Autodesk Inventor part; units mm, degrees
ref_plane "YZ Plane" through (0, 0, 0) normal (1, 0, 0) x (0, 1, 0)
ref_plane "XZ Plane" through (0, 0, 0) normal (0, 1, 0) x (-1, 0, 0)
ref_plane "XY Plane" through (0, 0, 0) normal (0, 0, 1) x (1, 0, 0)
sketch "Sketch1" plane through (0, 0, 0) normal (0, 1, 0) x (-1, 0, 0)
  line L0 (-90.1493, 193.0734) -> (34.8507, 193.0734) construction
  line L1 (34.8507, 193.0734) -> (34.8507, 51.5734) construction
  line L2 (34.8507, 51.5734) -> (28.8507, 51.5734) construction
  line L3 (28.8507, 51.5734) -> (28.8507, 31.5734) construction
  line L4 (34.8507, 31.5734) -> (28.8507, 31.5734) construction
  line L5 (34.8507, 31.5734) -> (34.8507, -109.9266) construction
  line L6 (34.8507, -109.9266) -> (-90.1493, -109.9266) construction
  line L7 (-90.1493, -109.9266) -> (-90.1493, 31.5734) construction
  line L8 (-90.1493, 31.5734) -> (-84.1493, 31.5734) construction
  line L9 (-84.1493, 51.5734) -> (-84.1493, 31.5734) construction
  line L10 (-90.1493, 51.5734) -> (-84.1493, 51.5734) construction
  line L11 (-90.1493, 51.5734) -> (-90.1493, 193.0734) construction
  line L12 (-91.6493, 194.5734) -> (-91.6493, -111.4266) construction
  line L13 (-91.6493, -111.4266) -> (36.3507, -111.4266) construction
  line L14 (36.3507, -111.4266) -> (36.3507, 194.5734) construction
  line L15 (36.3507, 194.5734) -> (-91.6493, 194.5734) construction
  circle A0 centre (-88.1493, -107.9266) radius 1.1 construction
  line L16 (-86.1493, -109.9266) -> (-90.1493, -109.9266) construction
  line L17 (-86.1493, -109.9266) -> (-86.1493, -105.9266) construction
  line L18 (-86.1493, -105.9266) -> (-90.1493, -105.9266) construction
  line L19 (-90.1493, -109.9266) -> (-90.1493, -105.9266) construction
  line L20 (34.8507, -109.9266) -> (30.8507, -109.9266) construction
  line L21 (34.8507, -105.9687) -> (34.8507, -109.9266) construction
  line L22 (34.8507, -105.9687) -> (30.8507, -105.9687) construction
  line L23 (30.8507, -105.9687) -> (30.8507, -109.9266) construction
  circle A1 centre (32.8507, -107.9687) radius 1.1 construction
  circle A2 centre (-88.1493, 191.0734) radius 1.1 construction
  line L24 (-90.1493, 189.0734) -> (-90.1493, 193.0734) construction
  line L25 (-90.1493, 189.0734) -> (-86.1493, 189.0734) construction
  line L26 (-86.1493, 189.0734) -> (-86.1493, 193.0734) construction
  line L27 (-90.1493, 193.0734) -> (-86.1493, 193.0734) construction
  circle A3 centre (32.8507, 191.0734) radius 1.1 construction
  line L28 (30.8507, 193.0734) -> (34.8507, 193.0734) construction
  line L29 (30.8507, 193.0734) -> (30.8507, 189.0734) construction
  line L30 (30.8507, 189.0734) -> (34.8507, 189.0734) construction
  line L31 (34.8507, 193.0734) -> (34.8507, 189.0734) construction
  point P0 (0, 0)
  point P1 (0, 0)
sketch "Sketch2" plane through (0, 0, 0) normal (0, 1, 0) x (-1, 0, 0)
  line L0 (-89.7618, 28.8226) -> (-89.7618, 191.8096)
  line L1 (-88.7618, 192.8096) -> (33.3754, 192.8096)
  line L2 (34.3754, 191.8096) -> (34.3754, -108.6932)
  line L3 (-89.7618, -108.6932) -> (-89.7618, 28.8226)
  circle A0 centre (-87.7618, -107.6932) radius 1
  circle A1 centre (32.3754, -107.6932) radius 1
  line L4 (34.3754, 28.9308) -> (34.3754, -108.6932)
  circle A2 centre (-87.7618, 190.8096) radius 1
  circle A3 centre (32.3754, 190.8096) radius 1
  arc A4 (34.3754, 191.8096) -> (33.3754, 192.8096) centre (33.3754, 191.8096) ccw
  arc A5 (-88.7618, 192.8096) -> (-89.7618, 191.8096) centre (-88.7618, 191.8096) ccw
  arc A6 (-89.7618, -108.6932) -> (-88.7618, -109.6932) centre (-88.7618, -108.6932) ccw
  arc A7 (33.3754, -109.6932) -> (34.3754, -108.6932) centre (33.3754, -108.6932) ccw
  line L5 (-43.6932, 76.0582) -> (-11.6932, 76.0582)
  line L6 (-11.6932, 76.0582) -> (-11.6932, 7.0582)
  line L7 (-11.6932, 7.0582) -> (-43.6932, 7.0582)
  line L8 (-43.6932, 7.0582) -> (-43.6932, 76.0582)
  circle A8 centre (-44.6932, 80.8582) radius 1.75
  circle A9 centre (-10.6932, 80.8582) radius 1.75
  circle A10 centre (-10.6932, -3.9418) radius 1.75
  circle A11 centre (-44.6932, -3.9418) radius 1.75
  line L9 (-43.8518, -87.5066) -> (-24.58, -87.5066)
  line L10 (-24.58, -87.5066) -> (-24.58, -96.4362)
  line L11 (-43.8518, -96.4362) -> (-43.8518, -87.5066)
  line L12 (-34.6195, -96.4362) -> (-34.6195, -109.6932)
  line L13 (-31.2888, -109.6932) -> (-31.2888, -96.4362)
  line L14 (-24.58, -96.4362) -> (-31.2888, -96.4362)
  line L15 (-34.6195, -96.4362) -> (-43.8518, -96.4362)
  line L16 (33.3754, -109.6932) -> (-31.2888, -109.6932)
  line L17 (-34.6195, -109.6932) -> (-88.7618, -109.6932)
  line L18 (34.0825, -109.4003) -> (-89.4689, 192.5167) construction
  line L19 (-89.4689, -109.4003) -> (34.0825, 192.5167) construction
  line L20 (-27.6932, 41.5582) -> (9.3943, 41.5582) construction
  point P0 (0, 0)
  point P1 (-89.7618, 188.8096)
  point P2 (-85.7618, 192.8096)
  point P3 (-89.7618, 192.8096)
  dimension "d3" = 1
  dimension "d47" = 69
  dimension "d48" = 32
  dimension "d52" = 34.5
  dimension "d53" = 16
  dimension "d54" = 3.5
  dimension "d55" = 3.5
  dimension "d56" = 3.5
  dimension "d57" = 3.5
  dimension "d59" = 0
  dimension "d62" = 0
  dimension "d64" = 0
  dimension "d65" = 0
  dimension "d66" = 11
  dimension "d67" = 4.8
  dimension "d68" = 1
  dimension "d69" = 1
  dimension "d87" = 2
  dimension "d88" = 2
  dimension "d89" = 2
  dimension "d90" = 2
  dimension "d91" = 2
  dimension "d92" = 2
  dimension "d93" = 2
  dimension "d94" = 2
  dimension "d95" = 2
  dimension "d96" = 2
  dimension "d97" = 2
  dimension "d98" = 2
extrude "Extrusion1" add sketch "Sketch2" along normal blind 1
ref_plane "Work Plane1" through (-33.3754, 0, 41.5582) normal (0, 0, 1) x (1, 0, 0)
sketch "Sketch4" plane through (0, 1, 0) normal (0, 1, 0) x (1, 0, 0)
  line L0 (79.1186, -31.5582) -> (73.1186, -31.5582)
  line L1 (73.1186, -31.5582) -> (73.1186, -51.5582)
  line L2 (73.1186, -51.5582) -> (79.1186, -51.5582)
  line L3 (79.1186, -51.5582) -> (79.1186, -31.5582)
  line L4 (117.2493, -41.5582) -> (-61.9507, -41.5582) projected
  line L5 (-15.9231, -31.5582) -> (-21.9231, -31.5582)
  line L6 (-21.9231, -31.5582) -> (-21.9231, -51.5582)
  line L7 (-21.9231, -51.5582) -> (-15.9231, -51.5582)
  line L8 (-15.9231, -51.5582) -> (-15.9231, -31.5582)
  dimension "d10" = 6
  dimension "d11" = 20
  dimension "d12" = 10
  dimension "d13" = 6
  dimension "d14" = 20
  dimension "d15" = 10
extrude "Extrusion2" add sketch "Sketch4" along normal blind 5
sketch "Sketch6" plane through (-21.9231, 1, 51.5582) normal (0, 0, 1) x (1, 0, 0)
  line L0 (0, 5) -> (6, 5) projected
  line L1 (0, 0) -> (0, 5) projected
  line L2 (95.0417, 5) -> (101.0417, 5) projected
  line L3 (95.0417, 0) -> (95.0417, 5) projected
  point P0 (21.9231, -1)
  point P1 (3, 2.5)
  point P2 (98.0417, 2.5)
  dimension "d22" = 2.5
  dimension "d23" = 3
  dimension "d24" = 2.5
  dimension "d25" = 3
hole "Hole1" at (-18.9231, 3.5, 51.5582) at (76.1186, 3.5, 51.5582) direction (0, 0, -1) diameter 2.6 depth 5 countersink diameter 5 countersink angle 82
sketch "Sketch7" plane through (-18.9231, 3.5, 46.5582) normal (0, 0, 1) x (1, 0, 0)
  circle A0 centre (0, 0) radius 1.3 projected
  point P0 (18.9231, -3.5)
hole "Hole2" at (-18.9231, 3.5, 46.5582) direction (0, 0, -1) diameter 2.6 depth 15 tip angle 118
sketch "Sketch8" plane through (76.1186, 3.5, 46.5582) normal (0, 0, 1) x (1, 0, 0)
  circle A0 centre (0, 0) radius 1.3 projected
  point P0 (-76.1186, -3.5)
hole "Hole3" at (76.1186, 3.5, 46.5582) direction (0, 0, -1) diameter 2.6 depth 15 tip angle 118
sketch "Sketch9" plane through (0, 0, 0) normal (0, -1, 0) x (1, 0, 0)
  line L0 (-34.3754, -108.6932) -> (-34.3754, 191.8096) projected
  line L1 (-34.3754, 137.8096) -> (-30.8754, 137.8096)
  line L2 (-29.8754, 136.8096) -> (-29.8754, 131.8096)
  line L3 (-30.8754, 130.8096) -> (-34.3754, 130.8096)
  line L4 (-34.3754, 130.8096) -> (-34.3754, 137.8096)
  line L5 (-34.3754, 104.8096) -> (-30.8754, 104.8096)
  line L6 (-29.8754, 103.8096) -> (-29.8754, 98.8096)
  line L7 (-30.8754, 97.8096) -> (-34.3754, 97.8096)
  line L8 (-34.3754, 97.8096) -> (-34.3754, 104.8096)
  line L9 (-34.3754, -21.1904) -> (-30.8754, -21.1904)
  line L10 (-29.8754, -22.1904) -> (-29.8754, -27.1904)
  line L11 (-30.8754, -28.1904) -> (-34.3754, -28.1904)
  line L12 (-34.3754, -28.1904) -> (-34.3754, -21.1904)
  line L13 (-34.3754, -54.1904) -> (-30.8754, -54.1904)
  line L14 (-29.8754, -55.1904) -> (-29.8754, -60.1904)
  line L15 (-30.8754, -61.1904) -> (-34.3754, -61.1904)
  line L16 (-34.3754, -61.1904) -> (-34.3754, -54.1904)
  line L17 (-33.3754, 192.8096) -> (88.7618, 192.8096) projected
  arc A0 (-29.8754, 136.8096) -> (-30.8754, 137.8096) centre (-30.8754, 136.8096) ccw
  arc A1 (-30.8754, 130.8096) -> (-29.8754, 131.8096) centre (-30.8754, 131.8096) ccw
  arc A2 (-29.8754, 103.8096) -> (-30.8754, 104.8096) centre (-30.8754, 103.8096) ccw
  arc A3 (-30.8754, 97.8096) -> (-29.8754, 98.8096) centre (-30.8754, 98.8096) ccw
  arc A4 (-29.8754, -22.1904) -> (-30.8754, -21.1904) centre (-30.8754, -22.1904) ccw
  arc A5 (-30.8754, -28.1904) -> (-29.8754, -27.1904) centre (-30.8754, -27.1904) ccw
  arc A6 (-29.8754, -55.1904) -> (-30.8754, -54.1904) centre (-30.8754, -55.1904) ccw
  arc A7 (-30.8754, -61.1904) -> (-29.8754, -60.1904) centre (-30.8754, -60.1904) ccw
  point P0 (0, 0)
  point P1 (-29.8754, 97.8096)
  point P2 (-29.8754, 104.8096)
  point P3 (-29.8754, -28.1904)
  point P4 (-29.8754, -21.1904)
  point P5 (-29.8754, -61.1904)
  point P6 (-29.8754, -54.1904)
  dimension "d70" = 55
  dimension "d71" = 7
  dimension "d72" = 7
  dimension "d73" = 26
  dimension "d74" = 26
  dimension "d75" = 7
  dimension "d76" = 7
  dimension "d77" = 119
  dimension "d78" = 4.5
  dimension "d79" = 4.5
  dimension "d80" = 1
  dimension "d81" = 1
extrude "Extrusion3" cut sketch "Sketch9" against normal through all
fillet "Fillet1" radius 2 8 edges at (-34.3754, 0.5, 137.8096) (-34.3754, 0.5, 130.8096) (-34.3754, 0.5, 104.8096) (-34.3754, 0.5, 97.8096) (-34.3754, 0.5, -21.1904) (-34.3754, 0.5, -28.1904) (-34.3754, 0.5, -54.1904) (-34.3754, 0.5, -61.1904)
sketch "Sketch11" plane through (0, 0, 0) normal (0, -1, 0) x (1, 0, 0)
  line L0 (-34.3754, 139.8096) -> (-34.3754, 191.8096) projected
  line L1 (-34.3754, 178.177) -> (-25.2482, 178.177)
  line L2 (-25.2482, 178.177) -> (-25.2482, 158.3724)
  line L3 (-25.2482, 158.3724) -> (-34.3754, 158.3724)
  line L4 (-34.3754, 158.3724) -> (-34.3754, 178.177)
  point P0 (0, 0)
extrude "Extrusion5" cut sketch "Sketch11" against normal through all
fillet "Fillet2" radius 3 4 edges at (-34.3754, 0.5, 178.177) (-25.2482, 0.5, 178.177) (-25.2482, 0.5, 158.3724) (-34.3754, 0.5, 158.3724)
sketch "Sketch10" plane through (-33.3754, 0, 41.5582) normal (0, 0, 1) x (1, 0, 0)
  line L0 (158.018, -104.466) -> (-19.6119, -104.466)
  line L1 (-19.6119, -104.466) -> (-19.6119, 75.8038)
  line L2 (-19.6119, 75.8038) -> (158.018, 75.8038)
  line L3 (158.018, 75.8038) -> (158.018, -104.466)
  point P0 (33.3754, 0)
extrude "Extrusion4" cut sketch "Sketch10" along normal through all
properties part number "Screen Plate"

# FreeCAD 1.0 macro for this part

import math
import FreeCAD as App
import Part
import Sketcher

V = App.Vector


def edges_at(feature, points):
    """Names of the edges that pass closest to the given points."""
    edges = feature.Shape.Edges
    near = lambda p: min(range(len(edges)), key=lambda i: edges[i].distToShape(Part.Vertex(*p))[0])
    return sorted({f"Edge{near(p) + 1}" for p in points})


def add_polygon(sketch, points):
    """Adds a closed chain of lines whose ends are joined by coincident constraints."""
    first, n = sketch.GeometryCount, len(points)
    for a, b in zip(points, points[1:] + points[:1]):
        sketch.addGeometry(Part.LineSegment(App.Vector(*a, 0), App.Vector(*b, 0)), False)
    for i in range(n):
        sketch.addConstraint(Sketcher.Constraint("Coincident", first + i, 2, first + (i + 1) % n, 1))

doc = App.newDocument("Part")
params = doc.addObject("Spreadsheet::Sheet", "Params")
for row, (alias, value) in enumerate([
    ("sketch1_diameter", "2 mm"),
    ("sketch1_diameter2", "3.5 mm"),
    ("sketch1_width", "32 mm"),
    ("sketch1_height", "69 mm"),
    ("pad1_length", "1 mm"),
    ("sketch2_width", "6 mm"),
    ("sketch2_height", "20 mm"),
    ("pad2_length", "5 mm"),
    ("sketch3_diameter", "2.6 mm"),
    ("hole_diameter", "2.6 mm"),
    ("hole_depth", "5 mm"),
    ("hole_csink_diameter", "5 mm"),
    ("sketch4_diameter", "2.6 mm"),
    ("hole2_diameter", "2.6 mm"),
    ("hole2_depth", "15 mm"),
    ("sketch5_diameter", "2.6 mm"),
    ("hole3_diameter", "2.6 mm"),
    ("hole3_depth", "15 mm"),
    ("sketch6_radius", "1 mm"),
    ("sketch6_height", "7 mm"),
    ("fillet_radius", "2 mm"),
    ("fillet2_radius", "3 mm"),
    ("sketch8_width", "177.63 mm"),
], start=1):
    params.set(f"A{row}", alias)
    params.set(f"B{row}", "=" + value)
    params.setAlias(f"B{row}", alias)

body = doc.addObject("PartDesign::Body", "Body")

sketch1 = body.newObject("Sketcher::SketchObject", "Sketch")
sketch1.AttachmentSupport = (doc.getObject("XZ_Plane"), [""])
sketch1.MapMode = "FlatFace"
sketch1.addGeometry(Part.LineSegment(V(89.8, 191.8, 0), V(89.8, -108.7, 0)), False)
sketch1.addGeometry(Part.ArcOfCircle(Part.Circle(V(88.8, -108.7, 0), V(0, 0, 1), 1), math.radians(-90), math.radians(0)), False)
sketch1.addGeometry(Part.LineSegment(V(88.8, -109.7, 0), V(34.6, -109.7, 0)), False)
sketch1.addGeometry(Part.LineSegment(V(34.6, -109.7, 0), V(34.6, -96.4, 0)), False)
sketch1.addGeometry(Part.LineSegment(V(34.6, -96.4, 0), V(43.9, -96.4, 0)), False)
sketch1.addGeometry(Part.LineSegment(V(43.9, -96.4, 0), V(43.9, -87.5, 0)), False)
sketch1.addGeometry(Part.LineSegment(V(43.9, -87.5, 0), V(24.6, -87.5, 0)), False)
sketch1.addGeometry(Part.LineSegment(V(24.6, -87.5, 0), V(24.6, -96.4, 0)), False)
sketch1.addGeometry(Part.LineSegment(V(24.6, -96.4, 0), V(31.3, -96.4, 0)), False)
sketch1.addGeometry(Part.LineSegment(V(31.3, -96.4, 0), V(31.3, -109.7, 0)), False)
sketch1.addGeometry(Part.LineSegment(V(31.3, -109.7, 0), V(-33.4, -109.7, 0)), False)
sketch1.addGeometry(Part.ArcOfCircle(Part.Circle(V(-33.4, -108.7, 0), V(0, 0, 1), 1), math.radians(180), math.radians(270)), False)
sketch1.addGeometry(Part.LineSegment(V(-34.4, -108.7, 0), V(-34.4, 191.8, 0)), False)
sketch1.addGeometry(Part.ArcOfCircle(Part.Circle(V(-33.4, 191.8, 0), V(0, 0, 1), 1), math.radians(90), math.radians(180)), False)
sketch1.addGeometry(Part.LineSegment(V(-33.4, 192.8, 0), V(88.8, 192.8, 0)), False)
sketch1.addGeometry(Part.ArcOfCircle(Part.Circle(V(88.8, 191.8, 0), V(0, 0, 1), 1), math.radians(0), math.radians(90)), False)
sketch1.addGeometry(Part.Circle(V(87.8, -107.7, 0), V(0, 0, 1), 1), False)
sketch1.addGeometry(Part.Circle(V(44.7, -3.9, 0), V(0, 0, 1), 1.8), False)
add_polygon(sketch1, [(43.7, 7.1), (43.7, 76.1), (11.7, 76.1), (11.7, 7.1)])
sketch1.addGeometry(Part.Circle(V(-32.4, -107.7, 0), V(0, 0, 1), 1), False)
sketch1.addGeometry(Part.Circle(V(10.7, -3.9, 0), V(0, 0, 1), 1.8), False)
sketch1.addGeometry(Part.Circle(V(44.7, 80.9, 0), V(0, 0, 1), 1.8), False)
sketch1.addGeometry(Part.Circle(V(87.8, 190.8, 0), V(0, 0, 1), 1), False)
sketch1.addGeometry(Part.Circle(V(10.7, 80.9, 0), V(0, 0, 1), 1.8), False)
sketch1.addGeometry(Part.Circle(V(-32.4, 190.8, 0), V(0, 0, 1), 1), False)
sketch1.addConstraint(Sketcher.Constraint("Tangent", 0, 2, 1, 2))
sketch1.addConstraint(Sketcher.Constraint("Tangent", 1, 1, 2, 1))
sketch1.addConstraint(Sketcher.Constraint("Coincident", 2, 2, 3, 1))
sketch1.addConstraint(Sketcher.Constraint("Coincident", 3, 2, 4, 1))
sketch1.addConstraint(Sketcher.Constraint("Coincident", 4, 2, 5, 1))
sketch1.addConstraint(Sketcher.Constraint("Coincident", 5, 2, 6, 1))
sketch1.addConstraint(Sketcher.Constraint("Coincident", 6, 2, 7, 1))
sketch1.addConstraint(Sketcher.Constraint("Coincident", 7, 2, 8, 1))
sketch1.addConstraint(Sketcher.Constraint("Coincident", 8, 2, 9, 1))
sketch1.addConstraint(Sketcher.Constraint("Coincident", 9, 2, 10, 1))
sketch1.addConstraint(Sketcher.Constraint("Tangent", 10, 2, 11, 2))
sketch1.addConstraint(Sketcher.Constraint("Tangent", 11, 1, 12, 1))
sketch1.addConstraint(Sketcher.Constraint("Tangent", 12, 2, 13, 2))
sketch1.addConstraint(Sketcher.Constraint("Tangent", 13, 1, 14, 1))
sketch1.addConstraint(Sketcher.Constraint("Tangent", 14, 2, 15, 2))
sketch1.addConstraint(Sketcher.Constraint("Tangent", 15, 1, 0, 1))
sketch1.addConstraint(Sketcher.Constraint("Vertical", 0))
sketch1.addConstraint(Sketcher.Constraint("Horizontal", 2))
sketch1.addConstraint(Sketcher.Constraint("Vertical", 3))
sketch1.addConstraint(Sketcher.Constraint("Horizontal", 4))
sketch1.addConstraint(Sketcher.Constraint("Vertical", 5))
sketch1.addConstraint(Sketcher.Constraint("Horizontal", 6))
sketch1.addConstraint(Sketcher.Constraint("Vertical", 7))
sketch1.addConstraint(Sketcher.Constraint("Horizontal", 8))
sketch1.addConstraint(Sketcher.Constraint("Vertical", 9))
sketch1.addConstraint(Sketcher.Constraint("Horizontal", 10))
sketch1.addConstraint(Sketcher.Constraint("Vertical", 12))
sketch1.addConstraint(Sketcher.Constraint("Horizontal", 14))
sketch1.addConstraint(Sketcher.Constraint("Vertical", 18))
sketch1.addConstraint(Sketcher.Constraint("Horizontal", 19))
sketch1.addConstraint(Sketcher.Constraint("Vertical", 20))
sketch1.addConstraint(Sketcher.Constraint("Horizontal", 21))
sketch1.addConstraint(Sketcher.Constraint("Equal", 1, 11))
sketch1.addConstraint(Sketcher.Constraint("Equal", 11, 13))
sketch1.addConstraint(Sketcher.Constraint("Equal", 13, 15))
sketch1.addConstraint(Sketcher.Constraint("Equal", 15, 16))
sketch1.addConstraint(Sketcher.Constraint("Equal", 16, 22))
sketch1.addConstraint(Sketcher.Constraint("Equal", 17, 23))
sketch1.addConstraint(Sketcher.Constraint("Equal", 23, 24))
sketch1.addConstraint(Sketcher.Constraint("Equal", 22, 25))
sketch1.addConstraint(Sketcher.Constraint("Equal", 24, 26))
sketch1.addConstraint(Sketcher.Constraint("Equal", 25, 27))
sketch1.addConstraint(Sketcher.Constraint("Horizontal", 1, 3, 11, 3))
sketch1.addConstraint(Sketcher.Constraint("Horizontal", 16, 3, 22, 3))
sketch1.addConstraint(Sketcher.Constraint("Horizontal", 17, 3, 23, 3))
sketch1.addConstraint(Sketcher.Constraint("Horizontal", 24, 3, 26, 3))
sketch1.addConstraint(Sketcher.Constraint("Horizontal", 25, 3, 27, 3))
sketch1.addConstraint(Sketcher.Constraint("Horizontal", 4, 2, 7, 2))
sketch1.addConstraint(Sketcher.Constraint("Vertical", 17, 3, 24, 3))
sketch1.addConstraint(Sketcher.Constraint("Vertical", 16, 3, 25, 3))
sketch1.addConstraint(Sketcher.Constraint("Vertical", 23, 3, 26, 3))
sketch1.addConstraint(Sketcher.Constraint("Vertical", 22, 3, 27, 3))
sketch1.addConstraint(Sketcher.Constraint("Diameter", 16, 2.0))
sketch1.addConstraint(Sketcher.Constraint("Diameter", 17, 3.5))
sketch1.addConstraint(Sketcher.Constraint("DistanceX", 19, 2, 19, 1, 32.0))
sketch1.addConstraint(Sketcher.Constraint("DistanceY", 18, 1, 18, 2, 69.0))
sketch1.addConstraint(Sketcher.Constraint("DistanceX", 16, 3, 1, 3, 1.0))
sketch1.addConstraint(Sketcher.Constraint("DistanceY", 1, 3, 16, 3, 1.0))
sketch1.addConstraint(Sketcher.Constraint("DistanceX", 11, 3, 22, 3, 1.0))
sketch1.addConstraint(Sketcher.Constraint("DistanceY", 25, 3, 15, 3, 1.0))
sketch1.addConstraint(Sketcher.Constraint("DistanceX", 18, 2, 24, 3, 1.0))
sketch1.addConstraint(Sketcher.Constraint("DistanceX", 26, 3, 19, 2, 1.0))
sketch1.addConstraint(Sketcher.Constraint("DistanceY", 23, 3, 20, 2, 11.0))
sketch1.addConstraint(Sketcher.Constraint("DistanceY", 18, 2, 24, 3, 4.8))
sketch1.addConstraint(Sketcher.Constraint("DistanceY", 3, 1, 3, 2, 13.257))
sketch1.addConstraint(Sketcher.Constraint("DistanceX", -1, 1, 6, 2, 24.58))
sketch1.addConstraint(Sketcher.Constraint("DistanceX", 4, 2, 16, 3, 43.91))
sketch1.addConstraint(Sketcher.Constraint("DistanceX", 2, 2, 2, 1, 54.1423))
sketch1.addConstraint(Sketcher.Constraint("DistanceX", 6, 2, 6, 1, 19.2718))
sketch1.addConstraint(Sketcher.Constraint("DistanceX", 8, 1, 8, 2, 6.7088))
sketch1.addConstraint(Sketcher.Constraint("DistanceX", 10, 2, 10, 1, 64.6642))
sketch1.addConstraint(Sketcher.Constraint("DistanceY", 0, 2, 0, 1, 300.5028))
sketch1.addConstraint(Sketcher.Constraint("DistanceY", 5, 1, 5, 2, 8.9296))
sketch1.addConstraint(Sketcher.Constraint("DistanceY", 1, 3, -1, 1, 108.6932))
sketch1.addConstraint(Sketcher.Constraint("DistanceX", -1, 1, 17, 3, 44.6932))
sketch1.addConstraint(Sketcher.Constraint("DistanceY", 17, 3, -1, 1, 3.9418))
sketch1.setExpression("Constraints[56]", "Params.sketch1_diameter")
sketch1.setExpression("Constraints[57]", "Params.sketch1_diameter2")
sketch1.setExpression("Constraints[58]", "Params.sketch1_width")
sketch1.setExpression("Constraints[59]", "Params.sketch1_height")
pad1 = body.newObject("PartDesign::Pad", "Pad")
pad1.Profile = sketch1
pad1.setExpression("Length", "Params.pad1_length")
pad1.Reversed = True

sketch2 = body.newObject("Sketcher::SketchObject", "Sketch001")
sketch2.AttachmentSupport = (doc.getObject("XZ_Plane"), [""])
sketch2.MapMode = "FlatFace"
sketch2.AttachmentOffset = App.Placement(V(0, 0, -1), App.Rotation())
add_polygon(sketch2, [(79, 32), (73, 32), (73, 52), (79, 52)])
add_polygon(sketch2, [(-16, 52), (-16, 32), (-22, 32), (-22, 52)])
sketch2.addConstraint(Sketcher.Constraint("Horizontal", 0))
sketch2.addConstraint(Sketcher.Constraint("Vertical", 1))
sketch2.addConstraint(Sketcher.Constraint("Horizontal", 2))
sketch2.addConstraint(Sketcher.Constraint("Vertical", 3))
sketch2.addConstraint(Sketcher.Constraint("Vertical", 4))
sketch2.addConstraint(Sketcher.Constraint("Horizontal", 5))
sketch2.addConstraint(Sketcher.Constraint("Vertical", 6))
sketch2.addConstraint(Sketcher.Constraint("Horizontal", 7))
sketch2.addConstraint(Sketcher.Constraint("Horizontal", 3, 2, 4, 2))
sketch2.addConstraint(Sketcher.Constraint("Horizontal", 2, 2, 6, 2))
sketch2.addConstraint(Sketcher.Constraint("Equal", 2, 5))
sketch2.addConstraint(Sketcher.Constraint("DistanceX", 0, 2, 0, 1, 6.0))
sketch2.addConstraint(Sketcher.Constraint("DistanceY", 1, 1, 1, 2, 20.0))
sketch2.addConstraint(Sketcher.Constraint("DistanceX", 4, 2, -1, 1, 15.923))
sketch2.addConstraint(Sketcher.Constraint("DistanceX", -1, 1, 0, 2, 73.1186))
sketch2.addConstraint(Sketcher.Constraint("DistanceY", -1, 1, 0, 2, 31.5582))
sketch2.setExpression("Constraints[19]", "Params.sketch2_width")
sketch2.setExpression("Constraints[20]", "Params.sketch2_height")
pad2 = body.newObject("PartDesign::Pad", "Pad001")
pad2.Profile = sketch2
pad2.setExpression("Length", "Params.pad2_length")
pad2.Reversed = True

sketch3 = body.newObject("Sketcher::SketchObject", "Sketch002")
sketch3.AttachmentSupport = (doc.getObject("XY_Plane"), [""])
sketch3.MapMode = "FlatFace"
sketch3.AttachmentOffset = App.Placement(V(0, 0, 51.5582), App.Rotation())
sketch3.addGeometry(Part.Circle(V(-18.9, 3.5, 0), V(0, 0, 1), 1.3), False)
sketch3.addGeometry(Part.Circle(V(76.1, 3.5, 0), V(0, 0, 1), 1.3), False)
sketch3.addConstraint(Sketcher.Constraint("Equal", 0, 1))
sketch3.addConstraint(Sketcher.Constraint("Horizontal", 0, 3, 1, 3))
sketch3.addConstraint(Sketcher.Constraint("Diameter", 0, 2.6))
sketch3.addConstraint(Sketcher.Constraint("DistanceY", -1, 1, 0, 3, 3.5))
sketch3.addConstraint(Sketcher.Constraint("DistanceX", 0, 3, -1, 1, 18.923))
sketch3.addConstraint(Sketcher.Constraint("DistanceX", -1, 1, 1, 3, 76.1186))
sketch3.setExpression("Constraints[2]", "Params.sketch3_diameter")
doc.recompute()
hole = body.newObject("PartDesign::Hole", "Hole")
hole.Profile = sketch3
hole.ThreadType = "None"
hole.setExpression("Diameter", "Params.hole_diameter")
hole.DepthType = "Dimension"
hole.setExpression("Depth", "Params.hole_depth")
hole.DrillPoint = "Flat"
hole.HoleCutType = "Countersink"
hole.setExpression("HoleCutDiameter", "Params.hole_csink_diameter")
hole.HoleCutCountersinkAngle = 82

sketch4 = body.newObject("Sketcher::SketchObject", "Sketch003")
sketch4.AttachmentSupport = (doc.getObject("XY_Plane"), [""])
sketch4.MapMode = "FlatFace"
sketch4.AttachmentOffset = App.Placement(V(0, 0, 46.5582), App.Rotation())
sketch4.addGeometry(Part.Circle(V(-18.9, 3.5, 0), V(0, 0, 1), 1.3), False)
sketch4.addConstraint(Sketcher.Constraint("Diameter", 0, 2.6))
sketch4.addConstraint(Sketcher.Constraint("DistanceY", -1, 1, 0, 3, 3.5))
sketch4.addConstraint(Sketcher.Constraint("DistanceX", 0, 3, -1, 1, 18.923))
sketch4.setExpression("Constraints[0]", "Params.sketch4_diameter")
doc.recompute()
hole2 = body.newObject("PartDesign::Hole", "Hole001")
hole2.Profile = sketch4
hole2.ThreadType = "None"
hole2.setExpression("Diameter", "Params.hole2_diameter")
hole2.DepthType = "Dimension"
hole2.setExpression("Depth", "Params.hole2_depth")
hole2.DrillPoint = "Angled"
hole2.DrillPointAngle = 118

sketch5 = body.newObject("Sketcher::SketchObject", "Sketch004")
sketch5.AttachmentSupport = (doc.getObject("XY_Plane"), [""])
sketch5.MapMode = "FlatFace"
sketch5.AttachmentOffset = App.Placement(V(0, 0, 46.5582), App.Rotation())
sketch5.addGeometry(Part.Circle(V(76.1, 3.5, 0), V(0, 0, 1), 1.3), False)
sketch5.addConstraint(Sketcher.Constraint("Diameter", 0, 2.6))
sketch5.addConstraint(Sketcher.Constraint("DistanceY", -1, 1, 0, 3, 3.5))
sketch5.addConstraint(Sketcher.Constraint("DistanceX", -1, 1, 0, 3, 76.1186))
sketch5.setExpression("Constraints[0]", "Params.sketch5_diameter")
doc.recompute()
hole3 = body.newObject("PartDesign::Hole", "Hole002")
hole3.Profile = sketch5
hole3.ThreadType = "None"
hole3.setExpression("Diameter", "Params.hole3_diameter")
hole3.DepthType = "Dimension"
hole3.setExpression("Depth", "Params.hole3_depth")
hole3.DrillPoint = "Angled"
hole3.DrillPointAngle = 118

sketch6 = body.newObject("Sketcher::SketchObject", "Sketch005")
sketch6.AttachmentSupport = (doc.getObject("XZ_Plane"), [""])
sketch6.MapMode = "FlatFace"
sketch6.addGeometry(Part.LineSegment(V(-34.4, 137.8, 0), V(-34.4, 130.8, 0)), False)
sketch6.addGeometry(Part.LineSegment(V(-34.4, 130.8, 0), V(-30.9, 130.8, 0)), False)
sketch6.addGeometry(Part.ArcOfCircle(Part.Circle(V(-30.9, 131.8, 0), V(0, 0, 1), 1), math.radians(-90), math.radians(0)), False)
sketch6.addGeometry(Part.LineSegment(V(-29.9, 131.8, 0), V(-29.9, 136.8, 0)), False)
sketch6.addGeometry(Part.ArcOfCircle(Part.Circle(V(-30.9, 136.8, 0), V(0, 0, 1), 1), math.radians(0), math.radians(90)), False)
sketch6.addGeometry(Part.LineSegment(V(-30.9, 137.8, 0), V(-34.4, 137.8, 0)), False)
sketch6.addGeometry(Part.LineSegment(V(-34.4, 104.8, 0), V(-34.4, 97.8, 0)), False)
sketch6.addGeometry(Part.LineSegment(V(-34.4, 97.8, 0), V(-30.9, 97.8, 0)), False)
sketch6.addGeometry(Part.ArcOfCircle(Part.Circle(V(-30.9, 98.8, 0), V(0, 0, 1), 1), math.radians(-90), math.radians(0)), False)
sketch6.addGeometry(Part.LineSegment(V(-29.9, 98.8, 0), V(-29.9, 103.8, 0)), False)
sketch6.addGeometry(Part.ArcOfCircle(Part.Circle(V(-30.9, 103.8, 0), V(0, 0, 1), 1), math.radians(0), math.radians(90)), False)
sketch6.addGeometry(Part.LineSegment(V(-30.9, 104.8, 0), V(-34.4, 104.8, 0)), False)
sketch6.addGeometry(Part.LineSegment(V(-34.4, -21.2, 0), V(-34.4, -28.2, 0)), False)
sketch6.addGeometry(Part.LineSegment(V(-34.4, -28.2, 0), V(-30.9, -28.2, 0)), False)
sketch6.addGeometry(Part.ArcOfCircle(Part.Circle(V(-30.9, -27.2, 0), V(0, 0, 1), 1), math.radians(-90), math.radians(0)), False)
sketch6.addGeometry(Part.LineSegment(V(-29.9, -27.2, 0), V(-29.9, -22.2, 0)), False)
sketch6.addGeometry(Part.ArcOfCircle(Part.Circle(V(-30.9, -22.2, 0), V(0, 0, 1), 1), math.radians(0), math.radians(90)), False)
sketch6.addGeometry(Part.LineSegment(V(-30.9, -21.2, 0), V(-34.4, -21.2, 0)), False)
sketch6.addGeometry(Part.LineSegment(V(-34.4, -54.2, 0), V(-34.4, -61.2, 0)), False)
sketch6.addGeometry(Part.LineSegment(V(-34.4, -61.2, 0), V(-30.9, -61.2, 0)), False)
sketch6.addGeometry(Part.ArcOfCircle(Part.Circle(V(-30.9, -60.2, 0), V(0, 0, 1), 1), math.radians(-90), math.radians(0)), False)
sketch6.addGeometry(Part.LineSegment(V(-29.9, -60.2, 0), V(-29.9, -55.2, 0)), False)
sketch6.addGeometry(Part.ArcOfCircle(Part.Circle(V(-30.9, -55.2, 0), V(0, 0, 1), 1), math.radians(0), math.radians(90)), False)
sketch6.addGeometry(Part.LineSegment(V(-30.9, -54.2, 0), V(-34.4, -54.2, 0)), False)
sketch6.addConstraint(Sketcher.Constraint("Coincident", 0, 2, 1, 1))
sketch6.addConstraint(Sketcher.Constraint("Tangent", 1, 2, 2, 1))
sketch6.addConstraint(Sketcher.Constraint("Tangent", 2, 2, 3, 1))
sketch6.addConstraint(Sketcher.Constraint("Tangent", 3, 2, 4, 1))
sketch6.addConstraint(Sketcher.Constraint("Tangent", 4, 2, 5, 1))
sketch6.addConstraint(Sketcher.Constraint("Coincident", 5, 2, 0, 1))
sketch6.addConstraint(Sketcher.Constraint("Coincident", 6, 2, 7, 1))
sketch6.addConstraint(Sketcher.Constraint("Tangent", 7, 2, 8, 1))
sketch6.addConstraint(Sketcher.Constraint("Tangent", 8, 2, 9, 1))
sketch6.addConstraint(Sketcher.Constraint("Tangent", 9, 2, 10, 1))
sketch6.addConstraint(Sketcher.Constraint("Tangent", 10, 2, 11, 1))
sketch6.addConstraint(Sketcher.Constraint("Coincident", 11, 2, 6, 1))
sketch6.addConstraint(Sketcher.Constraint("Coincident", 12, 2, 13, 1))
sketch6.addConstraint(Sketcher.Constraint("Tangent", 13, 2, 14, 1))
sketch6.addConstraint(Sketcher.Constraint("Tangent", 14, 2, 15, 1))
sketch6.addConstraint(Sketcher.Constraint("Tangent", 15, 2, 16, 1))
sketch6.addConstraint(Sketcher.Constraint("Tangent", 16, 2, 17, 1))
sketch6.addConstraint(Sketcher.Constraint("Coincident", 17, 2, 12, 1))
sketch6.addConstraint(Sketcher.Constraint("Coincident", 18, 2, 19, 1))
sketch6.addConstraint(Sketcher.Constraint("Tangent", 19, 2, 20, 1))
sketch6.addConstraint(Sketcher.Constraint("Tangent", 20, 2, 21, 1))
sketch6.addConstraint(Sketcher.Constraint("Tangent", 21, 2, 22, 1))
sketch6.addConstraint(Sketcher.Constraint("Tangent", 22, 2, 23, 1))
sketch6.addConstraint(Sketcher.Constraint("Coincident", 23, 2, 18, 1))
sketch6.addConstraint(Sketcher.Constraint("Vertical", 0))
sketch6.addConstraint(Sketcher.Constraint("Horizontal", 1))
sketch6.addConstraint(Sketcher.Constraint("Vertical", 3))
sketch6.addConstraint(Sketcher.Constraint("Horizontal", 5))
sketch6.addConstraint(Sketcher.Constraint("Vertical", 6))
sketch6.addConstraint(Sketcher.Constraint("Horizontal", 7))
sketch6.addConstraint(Sketcher.Constraint("Vertical", 9))
sketch6.addConstraint(Sketcher.Constraint("Horizontal", 11))
sketch6.addConstraint(Sketcher.Constraint("Vertical", 12))
sketch6.addConstraint(Sketcher.Constraint("Horizontal", 13))
sketch6.addConstraint(Sketcher.Constraint("Vertical", 15))
sketch6.addConstraint(Sketcher.Constraint("Horizontal", 17))
sketch6.addConstraint(Sketcher.Constraint("Vertical", 18))
sketch6.addConstraint(Sketcher.Constraint("Horizontal", 19))
sketch6.addConstraint(Sketcher.Constraint("Vertical", 21))
sketch6.addConstraint(Sketcher.Constraint("Horizontal", 23))
sketch6.addConstraint(Sketcher.Constraint("Equal", 2, 4))
sketch6.addConstraint(Sketcher.Constraint("Equal", 4, 8))
sketch6.addConstraint(Sketcher.Constraint("Equal", 8, 10))
sketch6.addConstraint(Sketcher.Constraint("Equal", 10, 14))
sketch6.addConstraint(Sketcher.Constraint("Equal", 14, 16))
sketch6.addConstraint(Sketcher.Constraint("Equal", 16, 20))
sketch6.addConstraint(Sketcher.Constraint("Equal", 20, 22))
sketch6.addConstraint(Sketcher.Constraint("Vertical", 4, 3, 8, 3))
sketch6.addConstraint(Sketcher.Constraint("Vertical", 10, 3, 14, 3))
sketch6.addConstraint(Sketcher.Constraint("Vertical", 16, 3, 20, 3))
sketch6.addConstraint(Sketcher.Constraint("Vertical", 5, 2, 6, 2))
sketch6.addConstraint(Sketcher.Constraint("Vertical", 11, 2, 12, 2))
sketch6.addConstraint(Sketcher.Constraint("Vertical", 17, 2, 18, 2))
sketch6.addConstraint(Sketcher.Constraint("Equal", 0, 6))
sketch6.addConstraint(Sketcher.Constraint("Equal", 6, 12))
sketch6.addConstraint(Sketcher.Constraint("Equal", 12, 18))
sketch6.addConstraint(Sketcher.Constraint("Radius", 2, 1.0))
sketch6.addConstraint(Sketcher.Constraint("DistanceY", 0, 2, 0, 1, 7.0))
sketch6.addConstraint(Sketcher.Constraint("DistanceX", 0, 2, 2, 2, 4.5))
sketch6.addConstraint(Sketcher.Constraint("DistanceY", 8, 3, 2, 3, 33.0))
sketch6.addConstraint(Sketcher.Constraint("DistanceY", 14, 3, 8, 3, 126.0))
sketch6.addConstraint(Sketcher.Constraint("DistanceY", 20, 3, 14, 3, 33.0))
sketch6.addConstraint(Sketcher.Constraint("DistanceX", 2, 3, -1, 1, 30.8754))
sketch6.addConstraint(Sketcher.Constraint("DistanceY", -1, 1, 2, 3, 131.8096))
sketch6.setExpression("Constraints[56]", "Params.sketch6_radius")
sketch6.setExpression("Constraints[57]", "Params.sketch6_height")
pocket1 = body.newObject("PartDesign::Pocket", "Pocket")
pocket1.Profile = sketch6
pocket1.Type = "ThroughAll"
doc.recompute()

fillet = body.newObject("PartDesign::Fillet", "Fillet")
fillet.Base = (pocket1, edges_at(pocket1, [
    (-34.375, 0.5, 137.81),
    (-34.375, 0.5, 130.81),
    (-34.375, 0.5, 104.81),
    (-34.375, 0.5, 97.81),
    (-34.375, 0.5, -21.19),
    (-34.375, 0.5, -28.19),
    (-34.375, 0.5, -54.19),
    (-34.375, 0.5, -61.19),
]))
fillet.setExpression("Radius", "Params.fillet_radius")

sketch7 = body.newObject("Sketcher::SketchObject", "Sketch006")
sketch7.AttachmentSupport = (doc.getObject("XZ_Plane"), [""])
sketch7.MapMode = "FlatFace"
add_polygon(sketch7, [(-34, 178), (-34, 158), (-25, 158), (-25, 178)])
sketch7.addConstraint(Sketcher.Constraint("Vertical", 0))
sketch7.addConstraint(Sketcher.Constraint("Horizontal", 1))
sketch7.addConstraint(Sketcher.Constraint("Vertical", 2))
sketch7.addConstraint(Sketcher.Constraint("Horizontal", 3))
sketch7.addConstraint(Sketcher.Constraint("DistanceX", 1, 1, 1, 2, 9.1272))
sketch7.addConstraint(Sketcher.Constraint("DistanceY", 0, 2, 0, 1, 19.8046))
sketch7.addConstraint(Sketcher.Constraint("DistanceY", -1, 1, 2, 2, 178.177))
sketch7.addConstraint(Sketcher.Constraint("DistanceX", 0, 2, -1, 1, 34.3754))
pocket2 = body.newObject("PartDesign::Pocket", "Pocket001")
pocket2.Profile = sketch7
pocket2.Type = "ThroughAll"
doc.recompute()

fillet2 = body.newObject("PartDesign::Fillet", "Fillet001")
fillet2.Base = (pocket2, edges_at(pocket2, [
    (-34.375, 0.5, 178.177),
    (-25.248, 0.5, 178.177),
    (-25.248, 0.5, 158.372),
    (-34.375, 0.5, 158.372),
]))
fillet2.setExpression("Radius", "Params.fillet2_radius")

sketch8 = body.newObject("Sketcher::SketchObject", "Sketch007")
sketch8.AttachmentSupport = (doc.getObject("XY_Plane"), [""])
sketch8.MapMode = "FlatFace"
sketch8.AttachmentOffset = App.Placement(V(0, 0, 41.5582), App.Rotation())
add_polygon(sketch8, [(-53, -104), (125, -104), (125, 76), (-53, 76)])
sketch8.addConstraint(Sketcher.Constraint("Horizontal", 0))
sketch8.addConstraint(Sketcher.Constraint("Vertical", 1))
sketch8.addConstraint(Sketcher.Constraint("Horizontal", 2))
sketch8.addConstraint(Sketcher.Constraint("Vertical", 3))
sketch8.addConstraint(Sketcher.Constraint("DistanceX", 0, 1, 0, 2, 177.63))
sketch8.addConstraint(Sketcher.Constraint("DistanceY", 1, 1, 1, 2, 180.2698))
sketch8.addConstraint(Sketcher.Constraint("DistanceY", 0, 2, -1, 1, 104.466))
sketch8.addConstraint(Sketcher.Constraint("DistanceX", -1, 1, 0, 2, 124.6426))
sketch8.setExpression("Constraints[8]", "Params.sketch8_width")
pocket3 = body.newObject("PartDesign::Pocket", "Pocket002")
pocket3.Profile = sketch8
pocket3.Type = "ThroughAll"
pocket3.Reversed = True

doc.recompute()
